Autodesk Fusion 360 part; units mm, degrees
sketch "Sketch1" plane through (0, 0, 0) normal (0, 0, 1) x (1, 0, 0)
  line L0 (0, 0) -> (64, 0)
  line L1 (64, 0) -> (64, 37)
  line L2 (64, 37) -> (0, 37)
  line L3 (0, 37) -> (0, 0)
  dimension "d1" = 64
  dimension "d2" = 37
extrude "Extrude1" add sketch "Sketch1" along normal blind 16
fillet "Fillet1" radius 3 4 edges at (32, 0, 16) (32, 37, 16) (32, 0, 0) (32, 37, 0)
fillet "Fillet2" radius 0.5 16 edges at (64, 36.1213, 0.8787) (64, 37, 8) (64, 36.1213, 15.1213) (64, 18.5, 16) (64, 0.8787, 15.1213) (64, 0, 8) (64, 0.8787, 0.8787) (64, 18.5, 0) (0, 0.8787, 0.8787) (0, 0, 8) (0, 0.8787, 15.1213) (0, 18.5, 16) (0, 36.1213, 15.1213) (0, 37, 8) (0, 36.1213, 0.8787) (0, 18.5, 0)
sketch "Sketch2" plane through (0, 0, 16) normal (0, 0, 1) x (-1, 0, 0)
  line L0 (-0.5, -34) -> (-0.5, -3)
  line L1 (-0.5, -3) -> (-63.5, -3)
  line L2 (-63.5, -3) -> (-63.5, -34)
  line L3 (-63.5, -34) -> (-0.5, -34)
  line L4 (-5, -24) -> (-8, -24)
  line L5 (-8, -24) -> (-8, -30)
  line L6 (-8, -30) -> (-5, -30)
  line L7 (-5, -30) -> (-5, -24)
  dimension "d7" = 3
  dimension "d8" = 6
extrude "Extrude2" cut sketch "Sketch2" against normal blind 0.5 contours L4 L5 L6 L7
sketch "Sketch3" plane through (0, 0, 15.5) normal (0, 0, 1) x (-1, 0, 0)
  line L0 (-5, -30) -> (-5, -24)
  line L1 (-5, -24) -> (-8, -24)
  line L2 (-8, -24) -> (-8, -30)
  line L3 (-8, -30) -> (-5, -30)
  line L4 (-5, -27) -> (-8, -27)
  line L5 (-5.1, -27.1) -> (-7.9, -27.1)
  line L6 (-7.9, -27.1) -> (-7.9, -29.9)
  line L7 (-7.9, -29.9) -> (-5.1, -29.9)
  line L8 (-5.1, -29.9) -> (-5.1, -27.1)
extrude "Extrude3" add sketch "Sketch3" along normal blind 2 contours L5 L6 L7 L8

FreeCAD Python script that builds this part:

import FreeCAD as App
import Part
import Sketcher

V = App.Vector
Q = App.Units.Quantity


def edges_at(feature, points):
    """Names of the edges that pass closest to the given points."""
    edges = feature.Shape.Edges
    near = lambda p: min(range(len(edges)), key=lambda i: edges[i].distToShape(Part.Vertex(*p))[0])
    return sorted({f"Edge{near(p) + 1}" for p in points})

doc = App.newDocument("Part")
body = doc.addObject("PartDesign::Body", "Body")

sketch1 = body.newObject("Sketcher::SketchObject", "Sketch")
sketch1.AttachmentSupport = (doc.getObject("XY_Plane"), [""])
sketch1.MapMode = "FlatFace"
sketch1.addGeometry([
    Part.LineSegment(V(0, 37, 0), V(0, 0, 0)),
    Part.LineSegment(V(0, 0, 0), V(64, 0, 0)),
    Part.LineSegment(V(64, 0, 0), V(64, 37, 0)),
    Part.LineSegment(V(64, 37, 0), V(0, 37, 0)),
], False)
sketch1.addConstraint([
    Sketcher.Constraint("Coincident", 0, 2, 1, 1),
    Sketcher.Constraint("Coincident", 1, 2, 2, 1),
    Sketcher.Constraint("Coincident", 2, 2, 3, 1),
    Sketcher.Constraint("Coincident", 3, 2, 0, 1),
    Sketcher.Constraint("Vertical", 0),
    Sketcher.Constraint("Horizontal", 1),
    Sketcher.Constraint("Vertical", 2),
    Sketcher.Constraint("Horizontal", 3),
    Sketcher.Constraint("Coincident", 0, 2, -1, 1),
    Sketcher.Constraint("DistanceX", 1, 1, 1, 2, Q("64 mm")),
    Sketcher.Constraint("DistanceY", 0, 2, 0, 1, Q("37 mm")),
])
pad1 = body.newObject("PartDesign::Pad", "Pad")
pad1.Profile = sketch1
pad1.Length = 16
doc.recompute()

fillet = body.newObject("PartDesign::Fillet", "Fillet")
fillet.Base = (pad1, edges_at(pad1, [
    (32, 0, 16),
    (32, 37, 16),
    (32, 0, 0),
    (32, 37, 0),
]))
fillet.Radius = 3
doc.recompute()

fillet2 = body.newObject("PartDesign::Fillet", "Fillet001")
fillet2.Base = (fillet, edges_at(fillet, [
    (64, 36.121, 0.879),
    (64, 37, 8),
    (64, 36.121, 15.121),
    (64, 18.5, 16),
    (64, 0.879, 15.121),
    (64, 0, 8),
    (64, 0.879, 0.879),
    (64, 18.5, 0),
    (0, 0.879, 0.879),
    (0, 0, 8),
    (0, 0.879, 15.121),
    (0, 18.5, 16),
    (0, 36.121, 15.121),
    (0, 37, 8),
    (0, 36.121, 0.879),
    (0, 18.5, 0),
]))
fillet2.Radius = 0.5

sketch2 = body.newObject("Sketcher::SketchObject", "Sketch001")
sketch2.AttachmentSupport = (doc.getObject("XY_Plane"), [""])
sketch2.MapMode = "FlatFace"
sketch2.AttachmentOffset = App.Placement(V(0, 0, 16), App.Rotation())
sketch2.addGeometry([
    Part.LineSegment(V(5, 30, 0), V(5, 24, 0)),
    Part.LineSegment(V(5, 24, 0), V(8, 24, 0)),
    Part.LineSegment(V(8, 24, 0), V(8, 30, 0)),
    Part.LineSegment(V(8, 30, 0), V(5, 30, 0)),
], False)
sketch2.addConstraint([
    Sketcher.Constraint("Coincident", 0, 2, 1, 1),
    Sketcher.Constraint("Coincident", 1, 2, 2, 1),
    Sketcher.Constraint("Coincident", 2, 2, 3, 1),
    Sketcher.Constraint("Coincident", 3, 2, 0, 1),
    Sketcher.Constraint("Vertical", 0),
    Sketcher.Constraint("Horizontal", 1),
    Sketcher.Constraint("Vertical", 2),
    Sketcher.Constraint("Horizontal", 3),
    Sketcher.Constraint("DistanceX", 1, 1, 1, 2, Q("3 mm")),
    Sketcher.Constraint("DistanceY", 0, 2, 0, 1, Q("6 mm")),
    Sketcher.Constraint("DistanceX", -1, 1, 0, 2, Q("5 mm")),
    Sketcher.Constraint("DistanceY", -1, 1, 0, 2, Q("24 mm")),
])
pocket1 = body.newObject("PartDesign::Pocket", "Pocket")
pocket1.Profile = sketch2
pocket1.Length = 0.5

sketch3 = body.newObject("Sketcher::SketchObject", "Sketch002")
sketch3.AttachmentSupport = (doc.getObject("XY_Plane"), [""])
sketch3.MapMode = "FlatFace"
sketch3.AttachmentOffset = App.Placement(V(0, 0, 15.5), App.Rotation())
sketch3.addGeometry([
    Part.LineSegment(V(5.1, 29.9, 0), V(5.1, 27.1, 0)),
    Part.LineSegment(V(5.1, 27.1, 0), V(7.9, 27.1, 0)),
    Part.LineSegment(V(7.9, 27.1, 0), V(7.9, 29.9, 0)),
    Part.LineSegment(V(7.9, 29.9, 0), V(5.1, 29.9, 0)),
], False)
sketch3.addConstraint([
    Sketcher.Constraint("Coincident", 0, 2, 1, 1),
    Sketcher.Constraint("Coincident", 1, 2, 2, 1),
    Sketcher.Constraint("Coincident", 2, 2, 3, 1),
    Sketcher.Constraint("Coincident", 3, 2, 0, 1),
    Sketcher.Constraint("Vertical", 0),
    Sketcher.Constraint("Horizontal", 1),
    Sketcher.Constraint("Vertical", 2),
    Sketcher.Constraint("Horizontal", 3),
    Sketcher.Constraint("Equal", 3, 0),
    Sketcher.Constraint("DistanceX", 1, 1, 1, 2, Q("2.8 mm")),
    Sketcher.Constraint("DistanceX", -1, 1, 0, 2, Q("5.1 mm")),
    Sketcher.Constraint("DistanceY", -1, 1, 0, 2, Q("27.1 mm")),
])
pad2 = body.newObject("PartDesign::Pad", "Pad001")
pad2.Profile = sketch3
pad2.Length = 2

doc.recompute()
